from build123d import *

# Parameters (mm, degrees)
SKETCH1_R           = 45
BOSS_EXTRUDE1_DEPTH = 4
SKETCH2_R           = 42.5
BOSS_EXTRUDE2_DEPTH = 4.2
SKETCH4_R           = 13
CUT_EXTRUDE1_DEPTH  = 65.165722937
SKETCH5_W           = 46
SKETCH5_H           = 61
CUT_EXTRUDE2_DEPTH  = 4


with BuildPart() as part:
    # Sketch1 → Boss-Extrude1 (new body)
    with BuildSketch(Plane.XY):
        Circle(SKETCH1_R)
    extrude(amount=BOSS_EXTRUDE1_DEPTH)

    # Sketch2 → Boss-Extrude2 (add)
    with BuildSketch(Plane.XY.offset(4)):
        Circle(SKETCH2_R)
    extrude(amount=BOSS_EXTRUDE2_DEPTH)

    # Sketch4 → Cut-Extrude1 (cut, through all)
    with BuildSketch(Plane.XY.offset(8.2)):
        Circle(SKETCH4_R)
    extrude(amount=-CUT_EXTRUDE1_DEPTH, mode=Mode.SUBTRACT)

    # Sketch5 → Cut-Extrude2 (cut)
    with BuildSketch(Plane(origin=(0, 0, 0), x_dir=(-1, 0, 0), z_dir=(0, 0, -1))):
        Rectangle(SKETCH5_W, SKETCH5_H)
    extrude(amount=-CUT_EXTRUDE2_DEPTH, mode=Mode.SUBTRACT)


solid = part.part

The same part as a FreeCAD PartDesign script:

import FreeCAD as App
import Part
import Sketcher

V = App.Vector
Q = App.Units.Quantity

doc = App.newDocument("Part")
body = doc.addObject("PartDesign::Body", "Body")

# Sketch on XY plane
sketch1 = doc.addObject("Sketcher::SketchObject", "Sketch")
body.addObject(sketch1)
sketch1.AttachmentSupport = (doc.XY_Plane, [""])
sketch1.MapMode = "FlatFace"
sketch1.addGeometry(Part.Circle(V(0, 0, 0), V(0, 0, 1), 45), False)
sketch1.addConstraint(Sketcher.Constraint("Coincident", 0, 3, -1, 1))
sketch1.addConstraint(Sketcher.Constraint("Diameter", 0, Q("90 mm")))
pad1 = doc.addObject("PartDesign::Pad", "Pad")
body.addObject(pad1)
pad1.Profile = sketch1
pad1.Length = 4

# Sketch on XY plane
sketch2 = doc.addObject("Sketcher::SketchObject", "Sketch001")
body.addObject(sketch2)
sketch2.AttachmentSupport = (doc.XY_Plane, [""])
sketch2.MapMode = "FlatFace"
sketch2.AttachmentOffset = App.Placement(V(0, 0, 4), App.Rotation())
sketch2.addGeometry(Part.Circle(V(0, 0, 0), V(0, 0, 1), 42), False)
sketch2.addConstraint(Sketcher.Constraint("Coincident", 0, 3, -1, 1))
sketch2.addConstraint(Sketcher.Constraint("Diameter", 0, Q("85 mm")))
pad2 = doc.addObject("PartDesign::Pad", "Pad001")
body.addObject(pad2)
pad2.Profile = sketch2
pad2.Length = 4.2

# Sketch on XY plane
sketch3 = doc.addObject("Sketcher::SketchObject", "Sketch002")
body.addObject(sketch3)
sketch3.AttachmentSupport = (doc.XY_Plane, [""])
sketch3.MapMode = "FlatFace"
sketch3.AttachmentOffset = App.Placement(V(0, 0, 8.2), App.Rotation())
sketch3.addGeometry(Part.Circle(V(0, 0, 0), V(0, 0, 1), 13), False)
sketch3.addConstraint(Sketcher.Constraint("Coincident", 0, 3, -1, 1))
sketch3.addConstraint(Sketcher.Constraint("Diameter", 0, Q("26 mm")))
pocket1 = doc.addObject("PartDesign::Pocket", "Pocket")
body.addObject(pocket1)
pocket1.Profile = sketch3
pocket1.Type = "ThroughAll"

# Sketch on XY plane
sketch4 = doc.addObject("Sketcher::SketchObject", "Sketch003")
body.addObject(sketch4)
sketch4.AttachmentSupport = (doc.XY_Plane, [""])
sketch4.MapMode = "FlatFace"
sketch4.addGeometry(Part.LineSegment(V(23, 30, 0), V(23, -30, 0)), False)
sketch4.addGeometry(Part.LineSegment(V(23, -30, 0), V(-23, -30, 0)), False)
sketch4.addGeometry(Part.LineSegment(V(-23, -30, 0), V(-23, 30, 0)), False)
sketch4.addGeometry(Part.LineSegment(V(-23, 30, 0), V(23, 30, 0)), False)
sketch4.addConstraint(Sketcher.Constraint("Coincident", 0, 2, 1, 1))
sketch4.addConstraint(Sketcher.Constraint("Coincident", 1, 2, 2, 1))
sketch4.addConstraint(Sketcher.Constraint("Coincident", 2, 2, 3, 1))
sketch4.addConstraint(Sketcher.Constraint("Coincident", 3, 2, 0, 1))
sketch4.addConstraint(Sketcher.Constraint("Vertical", 0))
sketch4.addConstraint(Sketcher.Constraint("Horizontal", 1))
sketch4.addConstraint(Sketcher.Constraint("Vertical", 2))
sketch4.addConstraint(Sketcher.Constraint("Horizontal", 3))
sketch4.addConstraint(Sketcher.Constraint("Symmetric", 0, 2, 2, 2, -1, 1))
sketch4.addConstraint(Sketcher.Constraint("DistanceX", 1, 2, 1, 1, Q("46 mm")))
sketch4.addConstraint(Sketcher.Constraint("DistanceY", 0, 2, 0, 1, Q("61 mm")))
pocket2 = doc.addObject("PartDesign::Pocket", "Pocket001")
body.addObject(pocket2)
pocket2.Profile = sketch4
pocket2.Length = 4
pocket2.Reversed = True

doc.recompute()
